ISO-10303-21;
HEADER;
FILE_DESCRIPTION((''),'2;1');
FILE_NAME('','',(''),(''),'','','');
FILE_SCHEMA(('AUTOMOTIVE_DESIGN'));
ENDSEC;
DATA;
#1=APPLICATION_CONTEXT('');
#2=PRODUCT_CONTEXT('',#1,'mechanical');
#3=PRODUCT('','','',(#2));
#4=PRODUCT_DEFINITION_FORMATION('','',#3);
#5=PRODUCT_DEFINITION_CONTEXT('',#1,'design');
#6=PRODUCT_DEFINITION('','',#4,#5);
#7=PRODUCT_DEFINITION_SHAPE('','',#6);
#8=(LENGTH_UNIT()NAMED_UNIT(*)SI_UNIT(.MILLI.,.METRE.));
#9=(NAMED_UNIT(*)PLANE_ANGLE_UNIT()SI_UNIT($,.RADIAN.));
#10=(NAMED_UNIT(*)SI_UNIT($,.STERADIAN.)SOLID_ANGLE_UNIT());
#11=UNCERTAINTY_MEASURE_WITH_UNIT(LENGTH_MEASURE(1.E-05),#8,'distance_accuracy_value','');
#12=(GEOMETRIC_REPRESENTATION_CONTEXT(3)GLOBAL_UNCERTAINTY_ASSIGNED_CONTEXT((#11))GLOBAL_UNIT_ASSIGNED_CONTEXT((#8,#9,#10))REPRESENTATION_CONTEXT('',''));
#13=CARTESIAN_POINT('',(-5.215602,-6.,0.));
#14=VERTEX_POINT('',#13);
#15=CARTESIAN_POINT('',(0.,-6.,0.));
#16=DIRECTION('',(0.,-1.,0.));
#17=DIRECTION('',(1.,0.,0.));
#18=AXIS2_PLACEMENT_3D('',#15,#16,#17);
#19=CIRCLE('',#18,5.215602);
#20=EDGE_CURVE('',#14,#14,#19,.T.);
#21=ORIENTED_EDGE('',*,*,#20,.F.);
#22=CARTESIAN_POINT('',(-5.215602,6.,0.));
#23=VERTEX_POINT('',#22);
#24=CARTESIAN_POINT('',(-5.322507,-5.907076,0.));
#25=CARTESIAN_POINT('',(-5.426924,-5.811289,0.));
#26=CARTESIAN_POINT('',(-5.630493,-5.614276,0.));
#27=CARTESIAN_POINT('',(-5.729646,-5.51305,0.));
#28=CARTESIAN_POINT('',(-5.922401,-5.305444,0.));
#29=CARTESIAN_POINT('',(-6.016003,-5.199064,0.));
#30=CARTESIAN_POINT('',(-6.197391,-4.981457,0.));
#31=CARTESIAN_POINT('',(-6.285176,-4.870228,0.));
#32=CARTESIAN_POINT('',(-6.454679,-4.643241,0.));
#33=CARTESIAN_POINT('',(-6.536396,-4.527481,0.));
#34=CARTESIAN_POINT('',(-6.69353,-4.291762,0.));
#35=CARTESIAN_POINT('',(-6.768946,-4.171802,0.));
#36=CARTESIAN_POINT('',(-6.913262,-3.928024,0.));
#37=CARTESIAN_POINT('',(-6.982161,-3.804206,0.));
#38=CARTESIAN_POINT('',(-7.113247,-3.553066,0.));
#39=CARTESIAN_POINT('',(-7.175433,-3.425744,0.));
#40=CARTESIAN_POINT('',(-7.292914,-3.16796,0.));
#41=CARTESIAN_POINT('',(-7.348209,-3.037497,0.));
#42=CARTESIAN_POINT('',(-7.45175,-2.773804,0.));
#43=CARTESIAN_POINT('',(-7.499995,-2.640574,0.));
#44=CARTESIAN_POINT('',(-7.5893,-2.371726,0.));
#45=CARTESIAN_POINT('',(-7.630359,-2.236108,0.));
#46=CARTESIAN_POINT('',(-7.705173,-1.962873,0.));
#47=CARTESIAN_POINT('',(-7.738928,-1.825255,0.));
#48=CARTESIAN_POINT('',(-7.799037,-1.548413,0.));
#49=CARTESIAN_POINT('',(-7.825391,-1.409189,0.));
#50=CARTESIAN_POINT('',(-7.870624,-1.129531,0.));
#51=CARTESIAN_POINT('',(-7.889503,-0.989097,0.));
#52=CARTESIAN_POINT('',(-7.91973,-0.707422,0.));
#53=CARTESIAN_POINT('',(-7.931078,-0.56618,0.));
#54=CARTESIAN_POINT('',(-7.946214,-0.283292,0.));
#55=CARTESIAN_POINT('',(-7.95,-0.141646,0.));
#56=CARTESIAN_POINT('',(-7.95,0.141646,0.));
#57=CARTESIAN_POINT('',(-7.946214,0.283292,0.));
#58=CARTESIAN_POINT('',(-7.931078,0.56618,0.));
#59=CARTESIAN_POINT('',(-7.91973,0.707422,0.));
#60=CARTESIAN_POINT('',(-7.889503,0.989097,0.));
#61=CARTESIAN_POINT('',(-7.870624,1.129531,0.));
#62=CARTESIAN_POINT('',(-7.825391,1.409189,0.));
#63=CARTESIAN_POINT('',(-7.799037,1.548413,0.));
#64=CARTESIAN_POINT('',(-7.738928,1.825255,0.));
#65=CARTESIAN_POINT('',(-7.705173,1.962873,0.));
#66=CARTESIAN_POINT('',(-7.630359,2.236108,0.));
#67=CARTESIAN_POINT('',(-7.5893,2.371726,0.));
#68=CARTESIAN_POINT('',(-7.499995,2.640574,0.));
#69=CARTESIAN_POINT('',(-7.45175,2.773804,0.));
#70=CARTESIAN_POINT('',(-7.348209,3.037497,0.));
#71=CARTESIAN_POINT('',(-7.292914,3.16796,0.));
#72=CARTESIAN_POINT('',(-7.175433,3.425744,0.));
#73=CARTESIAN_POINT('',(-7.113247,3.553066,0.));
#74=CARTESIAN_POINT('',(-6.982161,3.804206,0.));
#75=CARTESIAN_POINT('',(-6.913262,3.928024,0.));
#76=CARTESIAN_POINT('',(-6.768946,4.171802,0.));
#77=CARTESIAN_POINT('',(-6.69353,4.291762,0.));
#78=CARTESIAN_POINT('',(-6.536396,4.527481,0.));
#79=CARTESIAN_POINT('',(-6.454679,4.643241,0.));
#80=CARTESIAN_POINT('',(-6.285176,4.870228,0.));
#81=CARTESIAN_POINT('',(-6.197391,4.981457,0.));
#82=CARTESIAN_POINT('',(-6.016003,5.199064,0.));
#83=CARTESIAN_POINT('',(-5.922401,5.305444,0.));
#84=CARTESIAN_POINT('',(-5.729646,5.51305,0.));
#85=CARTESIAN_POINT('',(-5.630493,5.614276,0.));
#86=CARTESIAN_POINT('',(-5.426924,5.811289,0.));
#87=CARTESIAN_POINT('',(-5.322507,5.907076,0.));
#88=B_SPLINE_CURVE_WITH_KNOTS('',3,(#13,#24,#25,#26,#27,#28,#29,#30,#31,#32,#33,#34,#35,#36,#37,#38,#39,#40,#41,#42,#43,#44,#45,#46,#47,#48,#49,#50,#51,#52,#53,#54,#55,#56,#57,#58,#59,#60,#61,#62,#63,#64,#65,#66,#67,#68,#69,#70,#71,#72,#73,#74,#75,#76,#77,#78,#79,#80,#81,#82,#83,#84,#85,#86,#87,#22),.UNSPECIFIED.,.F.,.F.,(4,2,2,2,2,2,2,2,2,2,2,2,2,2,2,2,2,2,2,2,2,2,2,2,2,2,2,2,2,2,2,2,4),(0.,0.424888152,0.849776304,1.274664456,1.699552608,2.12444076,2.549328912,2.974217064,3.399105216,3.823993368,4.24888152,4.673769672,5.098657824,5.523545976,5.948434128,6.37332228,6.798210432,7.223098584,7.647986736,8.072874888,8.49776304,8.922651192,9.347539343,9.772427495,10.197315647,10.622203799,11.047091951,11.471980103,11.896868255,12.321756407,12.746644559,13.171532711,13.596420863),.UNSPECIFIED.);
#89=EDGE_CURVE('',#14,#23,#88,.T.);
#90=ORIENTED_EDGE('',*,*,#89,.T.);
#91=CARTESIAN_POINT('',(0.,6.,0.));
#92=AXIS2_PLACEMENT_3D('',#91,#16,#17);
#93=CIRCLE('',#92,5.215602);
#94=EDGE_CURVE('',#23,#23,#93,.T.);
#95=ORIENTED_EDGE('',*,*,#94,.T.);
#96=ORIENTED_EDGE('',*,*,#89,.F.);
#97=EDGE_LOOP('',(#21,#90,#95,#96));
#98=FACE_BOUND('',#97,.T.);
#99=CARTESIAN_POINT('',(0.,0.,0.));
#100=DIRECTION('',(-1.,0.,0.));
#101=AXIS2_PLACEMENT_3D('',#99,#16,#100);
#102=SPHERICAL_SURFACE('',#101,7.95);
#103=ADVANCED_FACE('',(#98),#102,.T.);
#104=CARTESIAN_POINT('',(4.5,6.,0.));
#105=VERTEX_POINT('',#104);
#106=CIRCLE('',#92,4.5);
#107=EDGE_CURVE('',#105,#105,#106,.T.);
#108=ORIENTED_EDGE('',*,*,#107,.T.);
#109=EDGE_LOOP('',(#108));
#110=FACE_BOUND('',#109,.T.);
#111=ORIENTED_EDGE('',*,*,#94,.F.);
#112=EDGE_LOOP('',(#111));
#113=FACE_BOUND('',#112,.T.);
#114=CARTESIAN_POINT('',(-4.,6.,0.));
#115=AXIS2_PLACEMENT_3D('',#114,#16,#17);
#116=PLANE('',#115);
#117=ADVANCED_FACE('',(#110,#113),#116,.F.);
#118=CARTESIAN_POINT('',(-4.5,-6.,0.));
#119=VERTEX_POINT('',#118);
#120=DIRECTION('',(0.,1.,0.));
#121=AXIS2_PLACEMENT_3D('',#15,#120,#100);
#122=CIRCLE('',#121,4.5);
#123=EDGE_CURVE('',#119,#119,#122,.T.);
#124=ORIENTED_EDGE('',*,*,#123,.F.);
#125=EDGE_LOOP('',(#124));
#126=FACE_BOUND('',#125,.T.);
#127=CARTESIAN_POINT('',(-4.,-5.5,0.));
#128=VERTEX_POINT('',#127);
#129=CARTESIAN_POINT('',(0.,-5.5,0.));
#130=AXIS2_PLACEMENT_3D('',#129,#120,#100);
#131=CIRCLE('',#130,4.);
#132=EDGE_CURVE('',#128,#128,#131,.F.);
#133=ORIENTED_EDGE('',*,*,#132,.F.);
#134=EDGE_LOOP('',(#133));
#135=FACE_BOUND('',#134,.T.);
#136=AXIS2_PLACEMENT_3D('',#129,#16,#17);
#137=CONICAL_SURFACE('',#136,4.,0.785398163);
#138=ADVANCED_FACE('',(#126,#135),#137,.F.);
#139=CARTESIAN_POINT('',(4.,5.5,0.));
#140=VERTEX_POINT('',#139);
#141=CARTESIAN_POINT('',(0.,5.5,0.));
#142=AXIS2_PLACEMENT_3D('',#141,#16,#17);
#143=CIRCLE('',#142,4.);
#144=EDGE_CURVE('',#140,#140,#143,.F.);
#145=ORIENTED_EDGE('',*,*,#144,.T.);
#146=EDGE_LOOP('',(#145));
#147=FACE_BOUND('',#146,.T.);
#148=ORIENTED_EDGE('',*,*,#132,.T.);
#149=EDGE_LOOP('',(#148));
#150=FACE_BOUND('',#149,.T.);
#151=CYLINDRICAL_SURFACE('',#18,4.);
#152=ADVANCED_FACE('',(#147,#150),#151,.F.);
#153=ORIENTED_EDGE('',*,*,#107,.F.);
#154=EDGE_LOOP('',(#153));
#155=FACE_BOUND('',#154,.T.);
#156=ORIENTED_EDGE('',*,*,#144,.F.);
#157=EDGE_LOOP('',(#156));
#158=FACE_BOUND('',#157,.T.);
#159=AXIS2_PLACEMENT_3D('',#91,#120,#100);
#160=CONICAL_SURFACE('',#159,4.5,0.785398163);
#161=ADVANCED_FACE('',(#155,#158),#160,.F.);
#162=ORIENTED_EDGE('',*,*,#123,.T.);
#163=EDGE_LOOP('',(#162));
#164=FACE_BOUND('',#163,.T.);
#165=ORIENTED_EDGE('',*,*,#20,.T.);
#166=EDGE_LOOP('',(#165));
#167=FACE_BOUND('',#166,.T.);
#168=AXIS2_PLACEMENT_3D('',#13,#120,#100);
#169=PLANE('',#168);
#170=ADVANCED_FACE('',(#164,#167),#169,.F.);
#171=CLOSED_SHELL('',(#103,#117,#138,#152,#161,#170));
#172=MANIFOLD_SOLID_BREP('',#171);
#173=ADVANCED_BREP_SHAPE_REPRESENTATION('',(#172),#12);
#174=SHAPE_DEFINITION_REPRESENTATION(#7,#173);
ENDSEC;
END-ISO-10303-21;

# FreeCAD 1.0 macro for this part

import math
import FreeCAD as App
import Part
import Sketcher
Q = App.Units.Quantity


def edges_at(feature, points):
    """Names of the edges that pass closest to the given points."""
    edges = feature.Shape.Edges
    near = lambda p: min(range(len(edges)), key=lambda i: edges[i].distToShape(Part.Vertex(*p))[0])
    return sorted({f"Edge{near(p) + 1}" for p in points})

doc = App.newDocument("Part")
body = doc.addObject("PartDesign::Body", "Body")

# Sketch on XY plane
sketch1 = body.newObject("Sketcher::SketchObject", "Sketch")
sketch1.AttachmentSupport = (doc.getObject("XY_Plane"), [""])
sketch1.MapMode = "FlatFace"
sketch1.addGeometry(Part.LineSegment(App.Vector(-5.215602, -6, 0), App.Vector(-4, -6, 0)), False)
sketch1.addGeometry(Part.LineSegment(App.Vector(-4, -6, 0), App.Vector(-4, 6, 0)), False)
sketch1.addGeometry(Part.LineSegment(App.Vector(-4, 6, 0), App.Vector(-5.215602, 6, 0)), False)
sketch1.addGeometry(Part.ArcOfCircle(Part.Circle(App.Vector(0, 0, 0), App.Vector(0, 0, 1), 7.95), math.radians(130.999354), math.radians(229.000646)), False)
sketch1.addConstraint(Sketcher.Constraint("Coincident", 0, 2, 1, 1))
sketch1.addConstraint(Sketcher.Constraint("Coincident", 1, 2, 2, 1))
sketch1.addConstraint(Sketcher.Constraint("Coincident", 2, 2, 3, 1))
sketch1.addConstraint(Sketcher.Constraint("Coincident", 3, 2, 0, 1))
sketch1.addConstraint(Sketcher.Constraint("Horizontal", 0))
sketch1.addConstraint(Sketcher.Constraint("Vertical", 1))
sketch1.addConstraint(Sketcher.Constraint("Horizontal", 2))
sketch1.addConstraint(Sketcher.Constraint("Coincident", 3, 3, -1, 1))
sketch1.addConstraint(Sketcher.Constraint("Vertical", 2, 2, 3, 2))
sketch1.addConstraint(Sketcher.Constraint("DistanceY", 1, 1, 1, 2, Q("12 mm")))
sketch1.addConstraint(Sketcher.Constraint("Radius", 3, Q("7.95 mm")))
sketch1.addConstraint(Sketcher.Constraint("DistanceX", 0, 2, -1, 1, Q("4 mm")))
revolution = body.newObject("PartDesign::Revolution", "Revolution")
revolution.Profile = sketch1
revolution.ReferenceAxis = (sketch1, ["V_Axis"])
revolution.Angle = 360
doc.recompute()

chamfer = body.newObject("PartDesign::Chamfer", "Chamfer")
chamfer.Base = (revolution, edges_at(revolution, [(4, 6, 0), (4, -6, 0)]))
chamfer.Size = 0.5

doc.recompute()
